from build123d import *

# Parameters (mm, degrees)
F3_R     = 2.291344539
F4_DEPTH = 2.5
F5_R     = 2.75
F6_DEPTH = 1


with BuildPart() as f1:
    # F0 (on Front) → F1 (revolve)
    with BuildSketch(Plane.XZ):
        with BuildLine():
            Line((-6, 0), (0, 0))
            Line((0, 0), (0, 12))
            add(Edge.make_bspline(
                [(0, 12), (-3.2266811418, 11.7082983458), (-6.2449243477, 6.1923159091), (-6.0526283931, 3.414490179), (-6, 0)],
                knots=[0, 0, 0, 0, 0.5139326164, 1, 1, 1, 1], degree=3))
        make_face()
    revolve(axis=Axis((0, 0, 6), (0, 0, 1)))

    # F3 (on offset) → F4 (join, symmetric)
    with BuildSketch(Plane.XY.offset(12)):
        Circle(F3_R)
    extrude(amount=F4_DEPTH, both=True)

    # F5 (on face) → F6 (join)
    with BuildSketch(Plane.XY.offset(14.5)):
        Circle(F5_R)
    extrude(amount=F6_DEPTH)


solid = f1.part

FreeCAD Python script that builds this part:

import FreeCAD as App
import Part
import Sketcher
from FreeCAD import Vector
Q = App.Units.Quantity

doc = App.newDocument("Part")
params = doc.addObject("Spreadsheet::Sheet", "Params")
for row, (alias, value) in enumerate([
    ("revolution_angle", "360 deg"),
    ("pad1_length", "5 mm"),
    ("sketch3_diameter", "5.5 mm"),
    ("pad2_length", "1 mm"),
], start=1):
    params.set(f"A{row}", alias)
    params.set(f"B{row}", "=" + value)
    params.setAlias(f"B{row}", alias)

body = doc.addObject("PartDesign::Body", "Body")

sketch1 = body.newObject("Sketcher::SketchObject", "Sketch")
sketch1.AttachmentSupport = (doc.getObject("XZ_Plane"), [""])
sketch1.MapMode = "FlatFace"
sketch1.addGeometry(Part.LineSegment(Vector(-6, 0, 0), Vector(0, 0, 0)), False)
sketch1.addGeometry(Part.LineSegment(Vector(0, 0, 0), Vector(0, 12, 0)), False)
sketch1.addGeometry(Part.BSplineCurve([Vector(0, 12, 0), Vector(-3.226681, 11.708298, 0), Vector(-6.244924, 6.192316, 0), Vector(-6.052628, 3.41449, 0), Vector(-6, 0, 0)], [4, 1, 4], [0, 0.513932616, 1], False, 3, [1, 1, 1, 1, 1], False), False)
sketch1.addConstraint(Sketcher.Constraint("Block", 2))
sketch1.addConstraint(Sketcher.Constraint("Coincident", 0, 2, 1, 1))
sketch1.addConstraint(Sketcher.Constraint("Coincident", 1, 2, 2, 1))
sketch1.addConstraint(Sketcher.Constraint("Coincident", 2, 2, 0, 1))
sketch1.addConstraint(Sketcher.Constraint("Horizontal", 0))
sketch1.addConstraint(Sketcher.Constraint("Vertical", 1))
revolution = body.newObject("PartDesign::Revolution", "Revolution")
revolution.Profile = sketch1
revolution.ReferenceAxis = (sketch1, ["V_Axis"])
revolution.setExpression("Angle", "Params.revolution_angle")

sketch2 = body.newObject("Sketcher::SketchObject", "Sketch001")
sketch2.AttachmentSupport = (doc.getObject("XY_Plane"), [""])
sketch2.MapMode = "FlatFace"
sketch2.AttachmentOffset = App.Placement(Vector(0, 0, 12), App.Rotation())
sketch2.addGeometry(Part.Circle(Vector(0, 0, 0), Vector(0, 0, 1), 2.291345), False)
sketch2.addConstraint(Sketcher.Constraint("Coincident", 0, 3, -1, 1))
sketch2.addConstraint(Sketcher.Constraint("Diameter", 0, Q("4.582689 mm")))
pad1 = body.newObject("PartDesign::Pad", "Pad")
pad1.Profile = sketch2
pad1.setExpression("Length", "Params.pad1_length")
pad1.Midplane = True

sketch3 = body.newObject("Sketcher::SketchObject", "Sketch002")
sketch3.AttachmentSupport = (doc.getObject("XY_Plane"), [""])
sketch3.MapMode = "FlatFace"
sketch3.AttachmentOffset = App.Placement(Vector(0, 0, 14.5), App.Rotation())
sketch3.addGeometry(Part.Circle(Vector(0, 0, 0), Vector(0, 0, 1), 2.75), False)
sketch3.addConstraint(Sketcher.Constraint("Coincident", 0, 3, -1, 1))
sketch3.addConstraint(Sketcher.Constraint("Diameter", 0, Q("5.5 mm")))
sketch3.setExpression("Constraints[1]", "Params.sketch3_diameter")
pad2 = body.newObject("PartDesign::Pad", "Pad001")
pad2.Profile = sketch3
pad2.setExpression("Length", "Params.pad2_length")

doc.recompute()
